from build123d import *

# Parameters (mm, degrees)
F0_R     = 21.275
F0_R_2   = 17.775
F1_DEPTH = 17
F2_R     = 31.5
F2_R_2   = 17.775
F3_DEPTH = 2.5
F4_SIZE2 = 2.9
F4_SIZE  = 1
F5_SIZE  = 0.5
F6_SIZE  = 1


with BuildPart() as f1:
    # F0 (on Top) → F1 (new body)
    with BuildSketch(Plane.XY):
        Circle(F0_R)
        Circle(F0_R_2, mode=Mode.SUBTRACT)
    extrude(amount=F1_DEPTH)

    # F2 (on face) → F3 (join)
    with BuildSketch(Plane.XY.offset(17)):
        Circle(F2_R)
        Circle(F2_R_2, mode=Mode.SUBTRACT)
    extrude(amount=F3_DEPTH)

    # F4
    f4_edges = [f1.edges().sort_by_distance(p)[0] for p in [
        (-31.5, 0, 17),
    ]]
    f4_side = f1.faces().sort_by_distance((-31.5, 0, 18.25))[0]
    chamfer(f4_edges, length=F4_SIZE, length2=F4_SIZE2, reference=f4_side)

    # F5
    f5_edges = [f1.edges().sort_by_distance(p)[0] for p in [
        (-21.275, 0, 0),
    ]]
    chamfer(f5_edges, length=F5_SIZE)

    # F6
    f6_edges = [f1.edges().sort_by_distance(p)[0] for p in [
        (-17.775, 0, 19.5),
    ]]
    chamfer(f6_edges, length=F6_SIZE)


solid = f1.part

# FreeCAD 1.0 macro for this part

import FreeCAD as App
import Part
import Sketcher

V = App.Vector
Q = App.Units.Quantity


def edges_at(feature, points):
    """Names of the edges that pass closest to the given points."""
    edges = feature.Shape.Edges
    near = lambda p: min(range(len(edges)), key=lambda i: edges[i].distToShape(Part.Vertex(*p))[0])
    return sorted({f"Edge{near(p) + 1}" for p in points})

doc = App.newDocument("Part")
params = doc.addObject("Spreadsheet::Sheet", "Params")
for row, (alias, value) in enumerate([
    ("sketch1_diameter", "42.55 mm"),
    ("sketch1_diameter2", "35.55 mm"),
    ("pad1_length", "17 mm"),
    ("sketch2_diameter", "63 mm"),
    ("sketch2_diameter2", "35.55 mm"),
    ("pad2_length", "2.5 mm"),
    ("chamfer_size", "1 mm"),
    ("chamfer_size2", "2.9 mm"),
    ("chamfer2_size", "0.5 mm"),
    ("chamfer3_size", "1 mm"),
], start=1):
    params.set(f"A{row}", alias)
    params.set(f"B{row}", "=" + value)
    params.setAlias(f"B{row}", alias)

body = doc.addObject("PartDesign::Body", "Body")

sketch1 = doc.addObject("Sketcher::SketchObject", "Sketch")
body.addObject(sketch1)
sketch1.AttachmentSupport = (doc.XY_Plane, [""])
sketch1.MapMode = "FlatFace"
sketch1.addGeometry(Part.Circle(V(0, 0, 0), V(0, 0, 1), 21), False)
sketch1.addGeometry(Part.Circle(V(0, 0, 0), V(0, 0, 1), 18), False)
sketch1.addConstraint(Sketcher.Constraint("Coincident", 0, 3, -1, 1))
sketch1.addConstraint(Sketcher.Constraint("Coincident", 1, 3, -1, 1))
sketch1.addConstraint(Sketcher.Constraint("Diameter", 0, Q("42.55 mm")))
sketch1.addConstraint(Sketcher.Constraint("Diameter", 1, Q("35.55 mm")))
sketch1.setExpression("Constraints[2]", "Params.sketch1_diameter")
sketch1.setExpression("Constraints[3]", "Params.sketch1_diameter2")
pad1 = doc.addObject("PartDesign::Pad", "Pad")
body.addObject(pad1)
pad1.Profile = sketch1
pad1.setExpression("Length", "Params.pad1_length")

sketch2 = doc.addObject("Sketcher::SketchObject", "Sketch001")
body.addObject(sketch2)
sketch2.AttachmentSupport = (doc.XY_Plane, [""])
sketch2.MapMode = "FlatFace"
sketch2.AttachmentOffset = App.Placement(V(0, 0, 17), App.Rotation())
sketch2.addGeometry(Part.Circle(V(0, 0, 0), V(0, 0, 1), 32), False)
sketch2.addGeometry(Part.Circle(V(0, 0, 0), V(0, 0, 1), 18), False)
sketch2.addConstraint(Sketcher.Constraint("Coincident", 0, 3, -1, 1))
sketch2.addConstraint(Sketcher.Constraint("Coincident", 1, 3, -1, 1))
sketch2.addConstraint(Sketcher.Constraint("Diameter", 0, Q("63 mm")))
sketch2.addConstraint(Sketcher.Constraint("Diameter", 1, Q("35.55 mm")))
sketch2.setExpression("Constraints[2]", "Params.sketch2_diameter")
sketch2.setExpression("Constraints[3]", "Params.sketch2_diameter2")
pad2 = doc.addObject("PartDesign::Pad", "Pad001")
body.addObject(pad2)
pad2.Profile = sketch2
pad2.setExpression("Length", "Params.pad2_length")
doc.recompute()

chamfer = doc.addObject("PartDesign::Chamfer", "Chamfer")
body.addObject(chamfer)
chamfer.Base = (pad2, edges_at(pad2, [(-31.5, 0, 17)]))
chamfer.ChamferType = "Two distances"
chamfer.setExpression("Size", "Params.chamfer_size")
chamfer.setExpression("Size2", "Params.chamfer_size2")
chamfer.FlipDirection = True
doc.recompute()

chamfer2 = doc.addObject("PartDesign::Chamfer", "Chamfer001")
body.addObject(chamfer2)
chamfer2.Base = (chamfer, edges_at(chamfer, [(-21.275, 0, 0)]))
chamfer2.setExpression("Size", "Params.chamfer2_size")
doc.recompute()

chamfer3 = doc.addObject("PartDesign::Chamfer", "Chamfer002")
body.addObject(chamfer3)
chamfer3.Base = (chamfer2, edges_at(chamfer2, [(-17.775, 0, 19.5)]))
chamfer3.setExpression("Size", "Params.chamfer3_size")

doc.recompute()
